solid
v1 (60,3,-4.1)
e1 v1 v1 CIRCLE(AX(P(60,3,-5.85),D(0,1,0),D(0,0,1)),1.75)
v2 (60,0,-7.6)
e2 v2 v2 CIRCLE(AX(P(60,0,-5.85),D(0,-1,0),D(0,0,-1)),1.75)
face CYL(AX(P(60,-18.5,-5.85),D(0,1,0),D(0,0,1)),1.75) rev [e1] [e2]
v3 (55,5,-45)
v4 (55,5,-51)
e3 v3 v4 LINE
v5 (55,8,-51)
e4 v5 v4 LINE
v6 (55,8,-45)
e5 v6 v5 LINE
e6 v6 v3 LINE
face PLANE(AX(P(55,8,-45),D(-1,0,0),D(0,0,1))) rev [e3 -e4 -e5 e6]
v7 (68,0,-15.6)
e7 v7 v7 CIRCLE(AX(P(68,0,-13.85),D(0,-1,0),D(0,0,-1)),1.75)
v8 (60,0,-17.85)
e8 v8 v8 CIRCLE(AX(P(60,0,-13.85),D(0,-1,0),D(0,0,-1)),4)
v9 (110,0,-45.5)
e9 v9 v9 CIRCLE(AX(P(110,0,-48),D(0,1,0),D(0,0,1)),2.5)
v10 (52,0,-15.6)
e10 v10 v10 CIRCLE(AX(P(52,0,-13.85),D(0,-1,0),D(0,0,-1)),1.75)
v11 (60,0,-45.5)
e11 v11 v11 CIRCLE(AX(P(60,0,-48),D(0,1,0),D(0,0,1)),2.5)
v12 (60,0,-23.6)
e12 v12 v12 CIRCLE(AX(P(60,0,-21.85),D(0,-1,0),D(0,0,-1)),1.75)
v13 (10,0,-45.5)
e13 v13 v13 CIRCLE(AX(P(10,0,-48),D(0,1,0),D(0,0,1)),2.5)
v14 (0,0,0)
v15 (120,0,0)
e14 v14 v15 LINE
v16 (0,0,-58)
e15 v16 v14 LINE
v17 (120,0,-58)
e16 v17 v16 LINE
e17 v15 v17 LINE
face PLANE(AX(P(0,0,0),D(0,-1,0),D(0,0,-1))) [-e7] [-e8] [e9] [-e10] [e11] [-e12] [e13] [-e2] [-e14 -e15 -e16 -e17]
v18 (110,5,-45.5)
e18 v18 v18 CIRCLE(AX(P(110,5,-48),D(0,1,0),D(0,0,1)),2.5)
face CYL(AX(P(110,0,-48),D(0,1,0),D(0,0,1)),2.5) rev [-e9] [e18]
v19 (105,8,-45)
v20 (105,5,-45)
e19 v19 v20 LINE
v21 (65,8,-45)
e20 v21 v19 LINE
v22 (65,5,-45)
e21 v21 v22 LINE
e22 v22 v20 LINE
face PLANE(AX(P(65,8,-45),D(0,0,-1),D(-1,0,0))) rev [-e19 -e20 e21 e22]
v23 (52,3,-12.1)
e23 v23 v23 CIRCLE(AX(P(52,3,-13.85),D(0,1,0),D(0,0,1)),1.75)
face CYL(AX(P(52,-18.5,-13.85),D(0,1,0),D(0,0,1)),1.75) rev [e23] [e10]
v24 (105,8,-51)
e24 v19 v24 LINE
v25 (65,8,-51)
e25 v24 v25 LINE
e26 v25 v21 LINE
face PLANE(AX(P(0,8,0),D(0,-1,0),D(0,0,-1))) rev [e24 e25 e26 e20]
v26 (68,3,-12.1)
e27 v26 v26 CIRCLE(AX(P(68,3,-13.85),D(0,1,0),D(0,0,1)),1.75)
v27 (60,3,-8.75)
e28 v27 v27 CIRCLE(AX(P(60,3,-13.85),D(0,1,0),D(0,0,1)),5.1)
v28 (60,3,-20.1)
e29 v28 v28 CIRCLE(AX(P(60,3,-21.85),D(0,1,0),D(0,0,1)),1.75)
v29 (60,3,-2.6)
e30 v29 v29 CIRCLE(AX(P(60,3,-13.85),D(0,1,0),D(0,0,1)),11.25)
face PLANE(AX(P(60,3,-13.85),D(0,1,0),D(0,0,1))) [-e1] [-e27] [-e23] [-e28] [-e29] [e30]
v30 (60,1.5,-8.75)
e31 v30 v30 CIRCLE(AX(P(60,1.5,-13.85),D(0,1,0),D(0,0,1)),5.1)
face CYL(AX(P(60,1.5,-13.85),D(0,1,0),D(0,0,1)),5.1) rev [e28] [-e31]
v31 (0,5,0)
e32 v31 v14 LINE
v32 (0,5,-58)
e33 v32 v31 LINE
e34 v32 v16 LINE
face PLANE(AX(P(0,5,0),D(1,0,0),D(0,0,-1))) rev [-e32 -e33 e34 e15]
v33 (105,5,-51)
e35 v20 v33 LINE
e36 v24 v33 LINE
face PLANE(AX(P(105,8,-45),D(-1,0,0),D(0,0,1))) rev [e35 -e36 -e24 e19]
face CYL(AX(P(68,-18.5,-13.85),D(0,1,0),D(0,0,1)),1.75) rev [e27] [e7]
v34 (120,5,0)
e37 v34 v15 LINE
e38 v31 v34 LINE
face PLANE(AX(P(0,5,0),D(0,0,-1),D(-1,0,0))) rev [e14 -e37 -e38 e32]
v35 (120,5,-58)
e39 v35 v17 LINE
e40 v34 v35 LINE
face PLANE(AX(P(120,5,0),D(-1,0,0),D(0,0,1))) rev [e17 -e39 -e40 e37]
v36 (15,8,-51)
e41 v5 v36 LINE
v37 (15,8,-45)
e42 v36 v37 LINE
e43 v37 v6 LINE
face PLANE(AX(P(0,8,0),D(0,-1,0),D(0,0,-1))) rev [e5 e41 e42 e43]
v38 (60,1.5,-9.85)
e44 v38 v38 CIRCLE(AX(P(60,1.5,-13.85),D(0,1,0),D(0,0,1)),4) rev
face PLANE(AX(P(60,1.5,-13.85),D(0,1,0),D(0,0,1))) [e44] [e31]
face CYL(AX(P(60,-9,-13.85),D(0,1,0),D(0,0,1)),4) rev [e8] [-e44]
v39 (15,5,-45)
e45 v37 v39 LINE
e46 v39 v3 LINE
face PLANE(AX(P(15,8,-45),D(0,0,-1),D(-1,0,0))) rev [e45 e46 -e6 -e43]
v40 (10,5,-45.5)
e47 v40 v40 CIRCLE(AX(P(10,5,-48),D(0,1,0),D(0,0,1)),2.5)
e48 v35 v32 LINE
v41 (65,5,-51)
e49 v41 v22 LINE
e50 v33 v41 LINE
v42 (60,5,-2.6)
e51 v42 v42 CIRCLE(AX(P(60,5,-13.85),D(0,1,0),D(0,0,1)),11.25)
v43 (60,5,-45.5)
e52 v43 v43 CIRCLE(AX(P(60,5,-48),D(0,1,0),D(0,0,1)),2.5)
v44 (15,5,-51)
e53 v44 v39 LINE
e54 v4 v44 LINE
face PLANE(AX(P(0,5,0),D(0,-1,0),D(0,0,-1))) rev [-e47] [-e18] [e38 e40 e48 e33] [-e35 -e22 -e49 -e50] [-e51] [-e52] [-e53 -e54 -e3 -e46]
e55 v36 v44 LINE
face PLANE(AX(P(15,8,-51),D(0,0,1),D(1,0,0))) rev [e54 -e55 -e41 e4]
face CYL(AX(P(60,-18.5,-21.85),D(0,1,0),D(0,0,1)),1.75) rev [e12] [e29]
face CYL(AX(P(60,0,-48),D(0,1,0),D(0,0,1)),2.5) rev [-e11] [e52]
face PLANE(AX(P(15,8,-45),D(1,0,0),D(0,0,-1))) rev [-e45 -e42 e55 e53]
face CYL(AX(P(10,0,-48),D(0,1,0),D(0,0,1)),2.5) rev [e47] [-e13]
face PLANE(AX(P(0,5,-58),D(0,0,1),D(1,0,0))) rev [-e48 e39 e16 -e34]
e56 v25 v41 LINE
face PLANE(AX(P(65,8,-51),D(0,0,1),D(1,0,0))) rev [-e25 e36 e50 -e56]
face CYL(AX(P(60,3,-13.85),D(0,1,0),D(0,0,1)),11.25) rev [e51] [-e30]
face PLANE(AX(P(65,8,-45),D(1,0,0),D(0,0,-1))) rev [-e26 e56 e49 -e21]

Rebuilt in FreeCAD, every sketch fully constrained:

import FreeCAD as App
import Part
import Sketcher
from FreeCAD import Vector
Q = App.Units.Quantity

doc = App.newDocument("Part")
body = doc.addObject("PartDesign::Body", "Body")

sketch1 = body.newObject("Sketcher::SketchObject", "Sketch")
sketch1.AttachmentSupport = (doc.getObject("XZ_Plane"), [""])
sketch1.MapMode = "FlatFace"
sketch1.addGeometry(Part.LineSegment(Vector(0, -58, 0), Vector(0, 0, 0)), False)
sketch1.addGeometry(Part.LineSegment(Vector(0, 0, 0), Vector(120, 0, 0)), False)
sketch1.addGeometry(Part.LineSegment(Vector(120, 0, 0), Vector(120, -58, 0)), False)
sketch1.addGeometry(Part.LineSegment(Vector(120, -58, 0), Vector(0, -58, 0)), False)
sketch1.addConstraint(Sketcher.Constraint("Coincident", 0, 2, 1, 1))
sketch1.addConstraint(Sketcher.Constraint("Coincident", 1, 2, 2, 1))
sketch1.addConstraint(Sketcher.Constraint("Coincident", 2, 2, 3, 1))
sketch1.addConstraint(Sketcher.Constraint("Coincident", 3, 2, 0, 1))
sketch1.addConstraint(Sketcher.Constraint("Vertical", 0))
sketch1.addConstraint(Sketcher.Constraint("Horizontal", 1))
sketch1.addConstraint(Sketcher.Constraint("Vertical", 2))
sketch1.addConstraint(Sketcher.Constraint("Horizontal", 3))
sketch1.addConstraint(Sketcher.Constraint("Coincident", 0, 2, -1, 1))
sketch1.addConstraint(Sketcher.Constraint("DistanceX", 1, 1, 1, 2, Q("120 mm")))
sketch1.addConstraint(Sketcher.Constraint("DistanceY", 0, 1, 0, 2, Q("58 mm")))
pad1 = body.newObject("PartDesign::Pad", "Pad")
pad1.Profile = sketch1
pad1.Length = 5
pad1.Reversed = True

sketch2 = body.newObject("Sketcher::SketchObject", "Sketch001")
sketch2.AttachmentSupport = (doc.getObject("XZ_Plane"), [""])
sketch2.MapMode = "FlatFace"
sketch2.AttachmentOffset = App.Placement(Vector(0, 0, -5), App.Rotation())
sketch2.addGeometry(Part.Circle(Vector(10, -48, 0), Vector(0, 0, 1), 2.5), False)
sketch2.addGeometry(Part.Circle(Vector(60, -48, 0), Vector(0, 0, 1), 2.5), False)
sketch2.addGeometry(Part.Circle(Vector(110, -48, 0), Vector(0, 0, 1), 2.5), False)
sketch2.addConstraint(Sketcher.Constraint("Equal", 0, 1))
sketch2.addConstraint(Sketcher.Constraint("Equal", 1, 2))
sketch2.addConstraint(Sketcher.Constraint("Horizontal", 0, 3, 1, 3))
sketch2.addConstraint(Sketcher.Constraint("Horizontal", 1, 3, 2, 3))
sketch2.addConstraint(Sketcher.Constraint("Diameter", 0, Q("5 mm")))
sketch2.addConstraint(Sketcher.Constraint("DistanceX", -1, 1, 0, 3, Q("10 mm")))
sketch2.addConstraint(Sketcher.Constraint("DistanceY", 0, 3, -1, 1, Q("48 mm")))
sketch2.addConstraint(Sketcher.Constraint("DistanceX", -1, 1, 1, 3, Q("60 mm")))
sketch2.addConstraint(Sketcher.Constraint("DistanceX", -1, 1, 2, 3, Q("110 mm")))
pocket1 = body.newObject("PartDesign::Pocket", "Pocket")
pocket1.Profile = sketch2
pocket1.Length = 5
pocket1.Reversed = True

sketch3 = body.newObject("Sketcher::SketchObject", "Sketch002")
sketch3.AttachmentSupport = (doc.getObject("XZ_Plane"), [""])
sketch3.MapMode = "FlatFace"
sketch3.AttachmentOffset = App.Placement(Vector(0, 0, -5), App.Rotation())
sketch3.addGeometry(Part.LineSegment(Vector(15, -51, 0), Vector(15, -45, 0)), False)
sketch3.addGeometry(Part.LineSegment(Vector(15, -45, 0), Vector(55, -45, 0)), False)
sketch3.addGeometry(Part.LineSegment(Vector(55, -45, 0), Vector(55, -51, 0)), False)
sketch3.addGeometry(Part.LineSegment(Vector(55, -51, 0), Vector(15, -51, 0)), False)
sketch3.addGeometry(Part.LineSegment(Vector(65, -51, 0), Vector(65, -45, 0)), False)
sketch3.addGeometry(Part.LineSegment(Vector(65, -45, 0), Vector(105, -45, 0)), False)
sketch3.addGeometry(Part.LineSegment(Vector(105, -45, 0), Vector(105, -51, 0)), False)
sketch3.addGeometry(Part.LineSegment(Vector(105, -51, 0), Vector(65, -51, 0)), False)
sketch3.addConstraint(Sketcher.Constraint("Coincident", 0, 2, 1, 1))
sketch3.addConstraint(Sketcher.Constraint("Coincident", 1, 2, 2, 1))
sketch3.addConstraint(Sketcher.Constraint("Coincident", 2, 2, 3, 1))
sketch3.addConstraint(Sketcher.Constraint("Coincident", 3, 2, 0, 1))
sketch3.addConstraint(Sketcher.Constraint("Coincident", 4, 2, 5, 1))
sketch3.addConstraint(Sketcher.Constraint("Coincident", 5, 2, 6, 1))
sketch3.addConstraint(Sketcher.Constraint("Coincident", 6, 2, 7, 1))
sketch3.addConstraint(Sketcher.Constraint("Coincident", 7, 2, 4, 1))
sketch3.addConstraint(Sketcher.Constraint("Vertical", 0))
sketch3.addConstraint(Sketcher.Constraint("Horizontal", 1))
sketch3.addConstraint(Sketcher.Constraint("Vertical", 2))
sketch3.addConstraint(Sketcher.Constraint("Horizontal", 3))
sketch3.addConstraint(Sketcher.Constraint("Vertical", 4))
sketch3.addConstraint(Sketcher.Constraint("Horizontal", 5))
sketch3.addConstraint(Sketcher.Constraint("Vertical", 6))
sketch3.addConstraint(Sketcher.Constraint("Horizontal", 7))
sketch3.addConstraint(Sketcher.Constraint("Horizontal", 1, 2, 4, 2))
sketch3.addConstraint(Sketcher.Constraint("Horizontal", 3, 2, 6, 2))
sketch3.addConstraint(Sketcher.Constraint("Equal", 3, 5))
sketch3.addConstraint(Sketcher.Constraint("DistanceX", 1, 1, 1, 2, Q("40 mm")))
sketch3.addConstraint(Sketcher.Constraint("DistanceY", 0, 1, 0, 2, Q("6 mm")))
sketch3.addConstraint(Sketcher.Constraint("DistanceX", -1, 1, 0, 2, Q("15 mm")))
sketch3.addConstraint(Sketcher.Constraint("DistanceY", 0, 2, -1, 1, Q("45 mm")))
sketch3.addConstraint(Sketcher.Constraint("DistanceX", -1, 1, 4, 2, Q("65 mm")))
pad2 = body.newObject("PartDesign::Pad", "Pad001")
pad2.Profile = sketch3
pad2.Length = 3
pad2.Reversed = True

sketch4 = body.newObject("Sketcher::SketchObject", "Sketch003")
sketch4.AttachmentSupport = (doc.getObject("XZ_Plane"), [""])
sketch4.MapMode = "FlatFace"
sketch4.AttachmentOffset = App.Placement(Vector(0, 0, -5), App.Rotation())
sketch4.addGeometry(Part.Circle(Vector(60, -13.85, 0), Vector(0, 0, 1), 11.25), False)
sketch4.addConstraint(Sketcher.Constraint("Diameter", 0, Q("22.5 mm")))
sketch4.addConstraint(Sketcher.Constraint("DistanceX", -1, 1, 0, 3, Q("60 mm")))
sketch4.addConstraint(Sketcher.Constraint("DistanceY", 0, 3, -1, 1, Q("13.85 mm")))
pocket2 = body.newObject("PartDesign::Pocket", "Pocket001")
pocket2.Profile = sketch4
pocket2.Length = 2
pocket2.Reversed = True

sketch5 = body.newObject("Sketcher::SketchObject", "Sketch004")
sketch5.AttachmentSupport = (doc.getObject("XZ_Plane"), [""])
sketch5.MapMode = "FlatFace"
sketch5.AttachmentOffset = App.Placement(Vector(0, 0, -3), App.Rotation())
sketch5.addGeometry(Part.Circle(Vector(60, -13.85, 0), Vector(0, 0, 1), 4), False)
sketch5.addConstraint(Sketcher.Constraint("Diameter", 0, Q("8 mm")))
sketch5.addConstraint(Sketcher.Constraint("DistanceX", -1, 1, 0, 3, Q("60 mm")))
sketch5.addConstraint(Sketcher.Constraint("DistanceY", 0, 3, -1, 1, Q("13.85 mm")))
pocket3 = body.newObject("PartDesign::Pocket", "Pocket002")
pocket3.Profile = sketch5
pocket3.Length = 12
pocket3.Reversed = True

sketch6 = body.newObject("Sketcher::SketchObject", "Sketch005")
sketch6.AttachmentSupport = (doc.getObject("XZ_Plane"), [""])
sketch6.MapMode = "FlatFace"
sketch6.AttachmentOffset = App.Placement(Vector(0, 0, -3), App.Rotation())
sketch6.addGeometry(Part.Circle(Vector(60, -13.85, 0), Vector(0, 0, 1), 5.1), False)
sketch6.addConstraint(Sketcher.Constraint("Diameter", 0, Q("10.2 mm")))
sketch6.addConstraint(Sketcher.Constraint("DistanceX", -1, 1, 0, 3, Q("60 mm")))
sketch6.addConstraint(Sketcher.Constraint("DistanceY", 0, 3, -1, 1, Q("13.85 mm")))
pocket4 = body.newObject("PartDesign::Pocket", "Pocket003")
pocket4.Profile = sketch6
pocket4.Length = 1.5
pocket4.Reversed = True

sketch7 = body.newObject("Sketcher::SketchObject", "Sketch006")
sketch7.AttachmentSupport = (doc.getObject("XZ_Plane"), [""])
sketch7.MapMode = "FlatFace"
sketch7.AttachmentOffset = App.Placement(Vector(0, 0, -3), App.Rotation())
sketch7.addGeometry(Part.Circle(Vector(52, -13.85, 0), Vector(0, 0, 1), 1.75), False)
sketch7.addGeometry(Part.Circle(Vector(60, -21.85, 0), Vector(0, 0, 1), 1.75), False)
sketch7.addGeometry(Part.Circle(Vector(68, -13.85, 0), Vector(0, 0, 1), 1.75), False)
sketch7.addGeometry(Part.Circle(Vector(60, -5.85, 0), Vector(0, 0, 1), 1.75), False)
sketch7.addConstraint(Sketcher.Constraint("Equal", 0, 1))
sketch7.addConstraint(Sketcher.Constraint("Equal", 1, 2))
sketch7.addConstraint(Sketcher.Constraint("Equal", 2, 3))
sketch7.addConstraint(Sketcher.Constraint("Horizontal", 0, 3, 2, 3))
sketch7.addConstraint(Sketcher.Constraint("Vertical", 1, 3, 3, 3))
sketch7.addConstraint(Sketcher.Constraint("Diameter", 0, Q("3.5 mm")))
sketch7.addConstraint(Sketcher.Constraint("DistanceX", -1, 1, 0, 3, Q("52 mm")))
sketch7.addConstraint(Sketcher.Constraint("DistanceX", -1, 1, 1, 3, Q("60 mm")))
sketch7.addConstraint(Sketcher.Constraint("DistanceX", -1, 1, 2, 3, Q("68 mm")))
sketch7.addConstraint(Sketcher.Constraint("DistanceY", 1, 3, 0, 3, Q("8 mm")))
sketch7.addConstraint(Sketcher.Constraint("DistanceY", 0, 3, 3, 3, Q("8 mm")))
sketch7.addConstraint(Sketcher.Constraint("DistanceY", 0, 3, -1, 1, Q("13.85 mm")))
pocket5 = body.newObject("PartDesign::Pocket", "Pocket004")
pocket5.Profile = sketch7
pocket5.Length = 21.5
pocket5.Reversed = True

doc.recompute()
